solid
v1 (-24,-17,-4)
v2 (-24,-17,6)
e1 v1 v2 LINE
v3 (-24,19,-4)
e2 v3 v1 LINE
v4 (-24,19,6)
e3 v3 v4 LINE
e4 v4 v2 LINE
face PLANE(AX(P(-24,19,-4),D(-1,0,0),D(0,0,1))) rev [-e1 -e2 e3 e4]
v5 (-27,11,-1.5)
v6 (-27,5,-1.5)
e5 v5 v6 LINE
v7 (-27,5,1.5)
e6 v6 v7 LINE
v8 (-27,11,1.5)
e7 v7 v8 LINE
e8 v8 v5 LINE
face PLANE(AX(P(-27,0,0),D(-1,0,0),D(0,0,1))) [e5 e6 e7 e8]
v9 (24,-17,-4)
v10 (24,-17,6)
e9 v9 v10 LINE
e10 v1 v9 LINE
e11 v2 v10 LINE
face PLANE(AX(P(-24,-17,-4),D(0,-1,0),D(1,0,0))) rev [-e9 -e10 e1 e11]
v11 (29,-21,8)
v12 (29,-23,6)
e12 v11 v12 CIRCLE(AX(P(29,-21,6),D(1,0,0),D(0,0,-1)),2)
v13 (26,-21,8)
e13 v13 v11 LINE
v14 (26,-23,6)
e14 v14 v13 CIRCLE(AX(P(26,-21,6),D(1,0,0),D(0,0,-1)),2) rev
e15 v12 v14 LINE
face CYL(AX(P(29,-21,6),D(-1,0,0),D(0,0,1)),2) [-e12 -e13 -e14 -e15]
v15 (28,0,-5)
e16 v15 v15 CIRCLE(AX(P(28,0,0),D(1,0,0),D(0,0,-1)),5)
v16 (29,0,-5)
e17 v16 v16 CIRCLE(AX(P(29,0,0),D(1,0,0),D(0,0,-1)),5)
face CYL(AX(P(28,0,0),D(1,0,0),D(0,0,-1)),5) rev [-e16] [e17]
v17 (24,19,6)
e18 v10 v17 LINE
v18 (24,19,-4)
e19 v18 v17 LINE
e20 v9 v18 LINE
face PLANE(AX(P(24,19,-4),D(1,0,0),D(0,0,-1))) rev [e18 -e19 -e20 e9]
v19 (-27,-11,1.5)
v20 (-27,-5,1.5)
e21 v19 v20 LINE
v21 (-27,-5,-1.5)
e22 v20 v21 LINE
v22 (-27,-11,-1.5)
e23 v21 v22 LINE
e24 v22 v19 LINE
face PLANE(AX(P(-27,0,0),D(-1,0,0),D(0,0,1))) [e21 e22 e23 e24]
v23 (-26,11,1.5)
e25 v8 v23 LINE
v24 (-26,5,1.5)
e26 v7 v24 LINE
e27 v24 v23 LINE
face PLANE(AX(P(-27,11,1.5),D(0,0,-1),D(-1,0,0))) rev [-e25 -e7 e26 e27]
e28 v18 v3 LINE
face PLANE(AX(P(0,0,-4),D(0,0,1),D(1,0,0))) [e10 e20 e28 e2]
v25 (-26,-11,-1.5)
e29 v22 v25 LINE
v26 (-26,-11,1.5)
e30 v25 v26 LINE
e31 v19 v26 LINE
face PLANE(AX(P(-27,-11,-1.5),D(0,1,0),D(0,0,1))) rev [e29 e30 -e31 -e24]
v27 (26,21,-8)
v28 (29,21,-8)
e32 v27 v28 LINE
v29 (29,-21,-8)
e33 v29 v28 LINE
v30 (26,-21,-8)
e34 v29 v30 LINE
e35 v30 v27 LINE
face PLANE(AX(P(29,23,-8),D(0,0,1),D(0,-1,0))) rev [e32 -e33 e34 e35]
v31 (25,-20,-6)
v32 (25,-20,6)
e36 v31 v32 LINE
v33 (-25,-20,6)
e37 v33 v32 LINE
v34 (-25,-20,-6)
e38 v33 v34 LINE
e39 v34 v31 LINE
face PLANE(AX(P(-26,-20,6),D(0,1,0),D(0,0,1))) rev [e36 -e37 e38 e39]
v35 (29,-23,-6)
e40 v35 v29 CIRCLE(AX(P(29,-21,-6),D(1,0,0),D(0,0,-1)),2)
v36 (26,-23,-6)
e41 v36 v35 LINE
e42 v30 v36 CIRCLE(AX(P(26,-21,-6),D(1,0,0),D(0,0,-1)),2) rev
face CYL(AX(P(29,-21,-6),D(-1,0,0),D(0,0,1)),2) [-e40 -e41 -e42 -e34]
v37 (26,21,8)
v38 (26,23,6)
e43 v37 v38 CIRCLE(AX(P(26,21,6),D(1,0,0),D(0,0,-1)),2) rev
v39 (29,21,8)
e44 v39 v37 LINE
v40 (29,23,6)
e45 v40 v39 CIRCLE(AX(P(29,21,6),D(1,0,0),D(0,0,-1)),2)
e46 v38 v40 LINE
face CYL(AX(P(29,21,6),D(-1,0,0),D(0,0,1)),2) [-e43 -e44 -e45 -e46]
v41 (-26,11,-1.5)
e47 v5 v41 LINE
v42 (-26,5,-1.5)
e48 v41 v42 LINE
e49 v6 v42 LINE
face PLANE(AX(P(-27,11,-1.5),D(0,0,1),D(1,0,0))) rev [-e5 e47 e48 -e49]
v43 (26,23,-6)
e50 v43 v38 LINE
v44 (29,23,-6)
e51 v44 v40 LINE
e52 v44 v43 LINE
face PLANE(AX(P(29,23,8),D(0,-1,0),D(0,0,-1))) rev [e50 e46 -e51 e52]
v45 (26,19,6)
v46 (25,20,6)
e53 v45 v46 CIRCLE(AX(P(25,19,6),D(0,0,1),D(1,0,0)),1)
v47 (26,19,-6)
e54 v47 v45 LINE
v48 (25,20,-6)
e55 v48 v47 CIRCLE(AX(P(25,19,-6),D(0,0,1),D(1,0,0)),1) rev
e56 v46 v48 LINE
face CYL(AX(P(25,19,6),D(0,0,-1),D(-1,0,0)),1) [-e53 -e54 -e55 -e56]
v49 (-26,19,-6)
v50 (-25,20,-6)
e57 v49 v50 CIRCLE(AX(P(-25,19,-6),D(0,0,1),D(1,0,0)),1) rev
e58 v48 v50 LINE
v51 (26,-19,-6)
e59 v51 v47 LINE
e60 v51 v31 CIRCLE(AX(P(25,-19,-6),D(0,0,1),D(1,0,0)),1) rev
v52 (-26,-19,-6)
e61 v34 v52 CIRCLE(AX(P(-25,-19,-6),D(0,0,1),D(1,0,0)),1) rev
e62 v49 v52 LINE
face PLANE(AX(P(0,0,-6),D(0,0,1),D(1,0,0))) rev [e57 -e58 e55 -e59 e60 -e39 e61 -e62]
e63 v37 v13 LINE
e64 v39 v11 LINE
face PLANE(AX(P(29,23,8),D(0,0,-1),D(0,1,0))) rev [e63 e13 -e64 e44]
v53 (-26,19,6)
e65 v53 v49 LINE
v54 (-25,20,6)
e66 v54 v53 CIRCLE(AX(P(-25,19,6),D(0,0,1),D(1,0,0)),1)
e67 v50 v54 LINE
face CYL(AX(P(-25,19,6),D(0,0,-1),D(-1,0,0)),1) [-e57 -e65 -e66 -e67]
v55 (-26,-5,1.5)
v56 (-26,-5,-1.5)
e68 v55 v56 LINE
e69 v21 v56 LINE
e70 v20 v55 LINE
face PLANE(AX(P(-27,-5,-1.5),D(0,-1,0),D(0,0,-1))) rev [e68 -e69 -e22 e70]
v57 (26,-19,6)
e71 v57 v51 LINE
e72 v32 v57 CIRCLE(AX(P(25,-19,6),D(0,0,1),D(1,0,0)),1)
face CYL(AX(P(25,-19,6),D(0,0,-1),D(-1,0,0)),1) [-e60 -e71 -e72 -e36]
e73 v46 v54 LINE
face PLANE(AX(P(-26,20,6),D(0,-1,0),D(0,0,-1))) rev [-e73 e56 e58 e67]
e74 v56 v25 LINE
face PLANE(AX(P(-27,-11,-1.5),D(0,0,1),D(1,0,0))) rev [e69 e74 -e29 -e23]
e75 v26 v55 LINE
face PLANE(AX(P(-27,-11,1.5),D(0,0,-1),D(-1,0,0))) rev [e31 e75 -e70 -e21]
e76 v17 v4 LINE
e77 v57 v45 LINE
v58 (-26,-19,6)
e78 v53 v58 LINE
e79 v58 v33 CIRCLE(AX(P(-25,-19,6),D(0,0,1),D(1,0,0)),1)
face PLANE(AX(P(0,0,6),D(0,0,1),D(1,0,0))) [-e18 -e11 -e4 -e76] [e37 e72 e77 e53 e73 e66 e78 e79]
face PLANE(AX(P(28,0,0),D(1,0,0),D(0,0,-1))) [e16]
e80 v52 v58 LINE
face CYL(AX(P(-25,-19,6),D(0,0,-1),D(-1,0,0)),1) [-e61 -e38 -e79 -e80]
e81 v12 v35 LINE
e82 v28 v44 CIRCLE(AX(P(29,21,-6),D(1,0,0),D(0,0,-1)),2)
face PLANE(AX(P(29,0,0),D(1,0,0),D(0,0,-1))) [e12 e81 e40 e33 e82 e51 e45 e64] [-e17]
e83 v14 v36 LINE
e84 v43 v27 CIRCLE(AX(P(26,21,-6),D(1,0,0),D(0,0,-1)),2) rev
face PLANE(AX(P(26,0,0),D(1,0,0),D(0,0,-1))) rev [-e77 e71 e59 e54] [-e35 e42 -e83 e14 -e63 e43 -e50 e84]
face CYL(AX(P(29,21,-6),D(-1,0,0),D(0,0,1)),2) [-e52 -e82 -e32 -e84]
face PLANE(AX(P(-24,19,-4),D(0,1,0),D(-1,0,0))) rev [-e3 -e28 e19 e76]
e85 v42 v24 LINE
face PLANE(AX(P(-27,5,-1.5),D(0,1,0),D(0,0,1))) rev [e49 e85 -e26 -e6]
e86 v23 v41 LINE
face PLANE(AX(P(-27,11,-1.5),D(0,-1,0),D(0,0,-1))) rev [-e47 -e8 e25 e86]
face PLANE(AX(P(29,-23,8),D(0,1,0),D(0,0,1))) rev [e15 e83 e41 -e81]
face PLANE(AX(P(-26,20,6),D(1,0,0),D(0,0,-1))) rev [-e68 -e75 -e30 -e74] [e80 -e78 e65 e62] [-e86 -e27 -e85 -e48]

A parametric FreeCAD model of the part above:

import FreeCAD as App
import Part
import Sketcher


def edges_at(feature, points):
    """Names of the edges that pass closest to the given points."""
    edges = feature.Shape.Edges
    near = lambda p: min(range(len(edges)), key=lambda i: edges[i].distToShape(Part.Vertex(*p))[0])
    return sorted({f"Edge{near(p) + 1}" for p in points})


def add_polygon(sketch, points):
    """Adds a closed chain of lines whose ends are joined by coincident constraints."""
    first, n = sketch.GeometryCount, len(points)
    for a, b in zip(points, points[1:] + points[:1]):
        sketch.addGeometry(Part.LineSegment(App.Vector(*a, 0), App.Vector(*b, 0)), False)
    for i in range(n):
        sketch.addConstraint(Sketcher.Constraint("Coincident", first + i, 2, first + (i + 1) % n, 1))

doc = App.newDocument("Part")
body = doc.addObject("PartDesign::Body", "Body")

sketch1 = body.newObject("Sketcher::SketchObject", "Sketch")
sketch1.AttachmentSupport = (doc.getObject("XY_Plane"), [""])
sketch1.MapMode = "FlatFace"
add_polygon(sketch1, [(-26, 20), (-26, -20), (26, -20), (26, 20)])
sketch1.addConstraint(Sketcher.Constraint("Vertical", 0))
sketch1.addConstraint(Sketcher.Constraint("Horizontal", 1))
sketch1.addConstraint(Sketcher.Constraint("Vertical", 2))
sketch1.addConstraint(Sketcher.Constraint("Horizontal", 3))
sketch1.addConstraint(Sketcher.Constraint("Symmetric", 0, 2, 2, 2, -1, 1))
sketch1.addConstraint(Sketcher.Constraint("DistanceX", 1, 1, 1, 2, 52.0))
sketch1.addConstraint(Sketcher.Constraint("DistanceY", 0, 2, 0, 1, 40.0))
pad1 = body.newObject("PartDesign::Pad", "Pad")
pad1.Profile = sketch1
pad1.Length = 12
pad1.Midplane = True
doc.recompute()

fillet = body.newObject("PartDesign::Fillet", "Fillet")
fillet.Base = (pad1, edges_at(pad1, [
    (-26, 20, 0),
    (26, 20, 0),
    (26, -20, 0),
    (-26, -20, 0),
]))
fillet.Radius = 1

sketch2 = body.newObject("Sketcher::SketchObject", "Sketch001")
sketch2.AttachmentSupport = (doc.getObject("XY_Plane"), [""])
sketch2.MapMode = "FlatFace"
sketch2.AttachmentOffset = App.Placement(App.Vector(0, 0, 6), App.Rotation())
add_polygon(sketch2, [(-24, 19), (-24, -17), (24, -17), (24, 19)])
sketch2.addConstraint(Sketcher.Constraint("Vertical", 0))
sketch2.addConstraint(Sketcher.Constraint("Horizontal", 1))
sketch2.addConstraint(Sketcher.Constraint("Vertical", 2))
sketch2.addConstraint(Sketcher.Constraint("Horizontal", 3))
sketch2.addConstraint(Sketcher.Constraint("DistanceX", 1, 1, 1, 2, 48.0))
sketch2.addConstraint(Sketcher.Constraint("DistanceY", 0, 2, 0, 1, 36.0))
sketch2.addConstraint(Sketcher.Constraint("DistanceX", 0, 2, -1, 1, 24.0))
sketch2.addConstraint(Sketcher.Constraint("DistanceY", 0, 2, -1, 1, 17.0))
pocket1 = body.newObject("PartDesign::Pocket", "Pocket")
pocket1.Profile = sketch2
pocket1.Length = 10

sketch3 = body.newObject("Sketcher::SketchObject", "Sketch002")
sketch3.AttachmentSupport = (doc.getObject("YZ_Plane"), [""])
sketch3.MapMode = "FlatFace"
sketch3.AttachmentOffset = App.Placement(App.Vector(0, 0, 26), App.Rotation())
add_polygon(sketch3, [(23, 8), (-23, 8), (-23, -8), (23, -8)])
sketch3.addConstraint(Sketcher.Constraint("Horizontal", 0))
sketch3.addConstraint(Sketcher.Constraint("Vertical", 1))
sketch3.addConstraint(Sketcher.Constraint("Horizontal", 2))
sketch3.addConstraint(Sketcher.Constraint("Vertical", 3))
sketch3.addConstraint(Sketcher.Constraint("Symmetric", 0, 2, 2, 2, -1, 1))
sketch3.addConstraint(Sketcher.Constraint("DistanceX", 0, 2, 0, 1, 46.0))
sketch3.addConstraint(Sketcher.Constraint("DistanceY", 1, 2, 1, 1, 16.0))
pad2 = body.newObject("PartDesign::Pad", "Pad001")
pad2.Profile = sketch3
pad2.Length = 3
doc.recompute()

fillet2 = body.newObject("PartDesign::Fillet", "Fillet001")
fillet2.Base = (pad2, edges_at(pad2, [
    (27.5, 23, 8),
    (27.5, -23, 8),
    (27.5, -23, -8),
    (27.5, 23, -8),
]))
fillet2.Radius = 2

sketch4 = body.newObject("Sketcher::SketchObject", "Sketch003")
sketch4.AttachmentSupport = (doc.getObject("YZ_Plane"), [""])
sketch4.MapMode = "FlatFace"
sketch4.AttachmentOffset = App.Placement(App.Vector(0, 0, 29), App.Rotation())
sketch4.addGeometry(Part.Circle(App.Vector(0, 0, 0), App.Vector(0, 0, 1), 5), False)
sketch4.addConstraint(Sketcher.Constraint("Coincident", 0, 3, -1, 1))
sketch4.addConstraint(Sketcher.Constraint("Diameter", 0, 10.0))
pocket2 = body.newObject("PartDesign::Pocket", "Pocket001")
pocket2.Profile = sketch4
pocket2.Length = 1

sketch5 = body.newObject("Sketcher::SketchObject", "Sketch004")
sketch5.AttachmentSupport = (doc.getObject("YZ_Plane"), [""])
sketch5.MapMode = "FlatFace"
sketch5.AttachmentOffset = App.Placement(App.Vector(0, 0, -26), App.Rotation())
add_polygon(sketch5, [(11, -1.5), (5, -1.5), (5, 1.5), (11, 1.5)])
add_polygon(sketch5, [(-5, -1.5), (-11, -1.5), (-11, 1.5), (-5, 1.5)])
sketch5.addConstraint(Sketcher.Constraint("Horizontal", 0))
sketch5.addConstraint(Sketcher.Constraint("Vertical", 1))
sketch5.addConstraint(Sketcher.Constraint("Horizontal", 2))
sketch5.addConstraint(Sketcher.Constraint("Vertical", 3))
sketch5.addConstraint(Sketcher.Constraint("Horizontal", 4))
sketch5.addConstraint(Sketcher.Constraint("Vertical", 5))
sketch5.addConstraint(Sketcher.Constraint("Horizontal", 6))
sketch5.addConstraint(Sketcher.Constraint("Vertical", 7))
sketch5.addConstraint(Sketcher.Constraint("Symmetric", 2, 2, 4, 2, -1, 1))
sketch5.addConstraint(Sketcher.Constraint("Symmetric", 0, 2, 6, 2, -1, 1))
sketch5.addConstraint(Sketcher.Constraint("Horizontal", 3, 2, 4, 2))
sketch5.addConstraint(Sketcher.Constraint("DistanceX", 0, 2, 0, 1, 6.0))
sketch5.addConstraint(Sketcher.Constraint("DistanceY", 1, 1, 1, 2, 3.0))
sketch5.addConstraint(Sketcher.Constraint("DistanceX", -1, 1, 0, 2, 5.0))
pad3 = body.newObject("PartDesign::Pad", "Pad002")
pad3.Profile = sketch5
pad3.Length = 1
pad3.Reversed = True

doc.recompute()
